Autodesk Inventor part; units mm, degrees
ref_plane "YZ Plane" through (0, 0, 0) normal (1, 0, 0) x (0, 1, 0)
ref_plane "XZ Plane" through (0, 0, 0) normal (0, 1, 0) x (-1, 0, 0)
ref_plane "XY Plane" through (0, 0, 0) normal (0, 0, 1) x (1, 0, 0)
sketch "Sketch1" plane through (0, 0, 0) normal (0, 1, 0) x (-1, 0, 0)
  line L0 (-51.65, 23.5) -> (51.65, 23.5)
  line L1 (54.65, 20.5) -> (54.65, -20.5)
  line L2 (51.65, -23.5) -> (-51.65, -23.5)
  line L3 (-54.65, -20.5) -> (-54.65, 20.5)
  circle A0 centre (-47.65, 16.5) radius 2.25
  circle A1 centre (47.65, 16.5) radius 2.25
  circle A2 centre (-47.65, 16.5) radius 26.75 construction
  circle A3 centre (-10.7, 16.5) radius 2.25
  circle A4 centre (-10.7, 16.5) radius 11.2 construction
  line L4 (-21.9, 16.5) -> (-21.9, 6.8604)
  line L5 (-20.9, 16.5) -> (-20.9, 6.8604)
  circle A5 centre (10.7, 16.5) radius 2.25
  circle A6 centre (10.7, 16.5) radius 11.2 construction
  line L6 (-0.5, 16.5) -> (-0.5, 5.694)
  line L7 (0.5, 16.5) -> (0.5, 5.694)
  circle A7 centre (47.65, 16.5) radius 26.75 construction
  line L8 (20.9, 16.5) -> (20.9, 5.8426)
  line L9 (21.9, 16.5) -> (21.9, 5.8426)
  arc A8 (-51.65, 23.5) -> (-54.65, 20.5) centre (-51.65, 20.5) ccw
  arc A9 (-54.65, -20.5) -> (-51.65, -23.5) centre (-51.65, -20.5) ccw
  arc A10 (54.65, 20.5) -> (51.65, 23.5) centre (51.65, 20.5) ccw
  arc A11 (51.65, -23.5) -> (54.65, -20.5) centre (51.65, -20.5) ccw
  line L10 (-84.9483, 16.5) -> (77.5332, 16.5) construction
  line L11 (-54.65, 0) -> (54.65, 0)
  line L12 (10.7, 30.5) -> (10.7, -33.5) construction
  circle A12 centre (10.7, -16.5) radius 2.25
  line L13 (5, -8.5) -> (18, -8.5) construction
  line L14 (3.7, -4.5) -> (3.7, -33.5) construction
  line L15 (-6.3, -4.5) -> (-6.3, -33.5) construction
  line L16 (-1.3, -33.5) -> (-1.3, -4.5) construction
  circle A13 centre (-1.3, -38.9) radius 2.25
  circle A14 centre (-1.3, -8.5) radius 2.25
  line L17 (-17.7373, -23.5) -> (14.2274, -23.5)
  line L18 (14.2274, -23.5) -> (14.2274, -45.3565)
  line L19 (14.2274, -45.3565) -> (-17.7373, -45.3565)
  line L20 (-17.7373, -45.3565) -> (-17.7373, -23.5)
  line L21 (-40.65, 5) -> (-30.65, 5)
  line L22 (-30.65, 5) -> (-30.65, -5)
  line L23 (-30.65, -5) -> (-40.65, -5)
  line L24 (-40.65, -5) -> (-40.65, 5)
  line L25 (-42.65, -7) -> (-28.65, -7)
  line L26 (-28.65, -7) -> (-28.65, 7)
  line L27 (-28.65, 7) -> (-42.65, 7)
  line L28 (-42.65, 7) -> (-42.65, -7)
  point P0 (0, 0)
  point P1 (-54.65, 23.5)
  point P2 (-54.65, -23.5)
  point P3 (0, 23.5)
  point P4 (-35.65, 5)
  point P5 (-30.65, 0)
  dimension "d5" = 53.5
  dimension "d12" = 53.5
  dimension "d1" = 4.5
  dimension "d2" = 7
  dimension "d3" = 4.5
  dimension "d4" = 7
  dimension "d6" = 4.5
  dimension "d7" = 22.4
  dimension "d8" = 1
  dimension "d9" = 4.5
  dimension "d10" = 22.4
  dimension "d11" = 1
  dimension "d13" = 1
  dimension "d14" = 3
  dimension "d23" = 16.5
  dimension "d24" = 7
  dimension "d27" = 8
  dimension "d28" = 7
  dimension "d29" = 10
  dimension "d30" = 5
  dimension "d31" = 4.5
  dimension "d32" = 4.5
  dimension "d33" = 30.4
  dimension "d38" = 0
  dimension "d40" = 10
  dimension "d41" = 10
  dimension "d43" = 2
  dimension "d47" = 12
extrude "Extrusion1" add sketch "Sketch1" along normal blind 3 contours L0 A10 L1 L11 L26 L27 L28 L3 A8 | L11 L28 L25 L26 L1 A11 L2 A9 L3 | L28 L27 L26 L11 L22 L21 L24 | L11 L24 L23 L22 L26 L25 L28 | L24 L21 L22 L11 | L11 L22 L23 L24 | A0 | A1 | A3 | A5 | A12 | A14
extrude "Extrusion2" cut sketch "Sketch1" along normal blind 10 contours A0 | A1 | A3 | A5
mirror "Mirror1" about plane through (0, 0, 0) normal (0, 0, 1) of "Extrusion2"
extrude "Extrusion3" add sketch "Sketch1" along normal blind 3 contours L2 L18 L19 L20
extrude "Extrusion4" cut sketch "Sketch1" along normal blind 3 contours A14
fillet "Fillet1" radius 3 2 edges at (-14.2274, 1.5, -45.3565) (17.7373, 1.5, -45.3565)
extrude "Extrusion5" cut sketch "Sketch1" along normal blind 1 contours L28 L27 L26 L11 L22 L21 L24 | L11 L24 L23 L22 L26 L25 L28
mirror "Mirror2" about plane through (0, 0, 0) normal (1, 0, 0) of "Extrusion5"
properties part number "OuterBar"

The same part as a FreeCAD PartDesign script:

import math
import FreeCAD as App
import Part
import Sketcher
from FreeCAD import Vector


def edges_at(feature, points):
    """Names of the edges that pass closest to the given points."""
    edges = feature.Shape.Edges
    near = lambda p: min(range(len(edges)), key=lambda i: edges[i].distToShape(Part.Vertex(*p))[0])
    return sorted({f"Edge{near(p) + 1}" for p in points})

doc = App.newDocument("Part")
body = doc.addObject("PartDesign::Body", "Body")

# Sketch on XZ plane
sketch1 = body.newObject("Sketcher::SketchObject", "Sketch")
sketch1.AttachmentSupport = (doc.getObject("XZ_Plane"), [""])
sketch1.MapMode = "FlatFace"
sketch1.addGeometry([
    Part.LineSegment(Vector(-51.6, 23.5, 0), Vector(51.6, 23.5, 0)),  # 0
    Part.ArcOfCircle(Part.Circle(Vector(51.6, 20.5, 0), Vector(0, 0, 1), 3), math.radians(0), math.radians(90)),  # 1
    Part.LineSegment(Vector(54.6, 20.5, 0), Vector(54.6, -20.5, 0)),  # 2
    Part.ArcOfCircle(Part.Circle(Vector(51.6, -20.5, 0), Vector(0, 0, 1), 3), math.radians(-90), math.radians(0)),  # 3
    Part.LineSegment(Vector(51.6, -23.5, 0), Vector(-51.6, -23.5, 0)),  # 4
    Part.ArcOfCircle(Part.Circle(Vector(-51.6, -20.5, 0), Vector(0, 0, 1), 3), math.radians(180), math.radians(270)),  # 5
    Part.LineSegment(Vector(-54.6, -20.5, 0), Vector(-54.6, 20.5, 0)),  # 6
    Part.ArcOfCircle(Part.Circle(Vector(-51.6, 20.5, 0), Vector(0, 0, 1), 3), math.radians(90), math.radians(180)),  # 7
], False)
sketch1.addConstraint([
    Sketcher.Constraint("Tangent", 0, 2, 1, 2),
    Sketcher.Constraint("Tangent", 1, 1, 2, 1),
    Sketcher.Constraint("Tangent", 2, 2, 3, 2),
    Sketcher.Constraint("Tangent", 3, 1, 4, 1),
    Sketcher.Constraint("Tangent", 4, 2, 5, 2),
    Sketcher.Constraint("Tangent", 5, 1, 6, 1),
    Sketcher.Constraint("Tangent", 6, 2, 7, 2),
    Sketcher.Constraint("Tangent", 7, 1, 0, 1),
    Sketcher.Constraint("Horizontal", 0),
    Sketcher.Constraint("Vertical", 2),
    Sketcher.Constraint("Horizontal", 4),
    Sketcher.Constraint("Vertical", 6),
    Sketcher.Constraint("Equal", 1, 3),
    Sketcher.Constraint("Equal", 3, 5),
    Sketcher.Constraint("Equal", 5, 7),
    Sketcher.Constraint("Symmetric", 1, 3, 5, 3, -1, 1),
    Sketcher.Constraint("Radius", 1, 3.0),
    Sketcher.Constraint("DistanceY", 2, 2, 2, 1, 41.0),
    Sketcher.Constraint("DistanceX", 0, 1, 0, 2, 103.3),
])
pad1 = body.newObject("PartDesign::Pad", "Pad")
pad1.Profile = sketch1
pad1.Length = 3
pad1.Reversed = True

# Sketch on XZ plane
sketch2 = body.newObject("Sketcher::SketchObject", "Sketch001")
sketch2.AttachmentSupport = (doc.getObject("XZ_Plane"), [""])
sketch2.MapMode = "FlatFace"
sketch2.addGeometry([
    Part.Circle(Vector(47.6, 16.5, 0), Vector(0, 0, 1), 2.2),
    Part.Circle(Vector(-47.6, 16.5, 0), Vector(0, 0, 1), 2.2),
    Part.Circle(Vector(10.7, 16.5, 0), Vector(0, 0, 1), 2.2),
    Part.Circle(Vector(-10.7, 16.5, 0), Vector(0, 0, 1), 2.2),
], False)
sketch2.addConstraint([
    Sketcher.Constraint("Equal", 0, 1),
    Sketcher.Constraint("Equal", 1, 2),
    Sketcher.Constraint("Equal", 2, 3),
    Sketcher.Constraint("Symmetric", 0, 3, 1, 3, -2),
    Sketcher.Constraint("Symmetric", 2, 3, 3, 3, -2),
    Sketcher.Constraint("Horizontal", 1, 3, 2, 3),
    Sketcher.Constraint("Diameter", 0, 4.5),
    Sketcher.Constraint("DistanceY", -1, 1, 0, 3, 16.5),
    Sketcher.Constraint("DistanceX", -1, 1, 2, 3, 10.7),
    Sketcher.Constraint("DistanceX", 1, 3, 0, 3, 95.3),
])
pocket1 = body.newObject("PartDesign::Pocket", "Pocket")
pocket1.Profile = sketch2
pocket1.Length = 10
doc.recompute()

mirrored = body.newObject("PartDesign::Mirrored", "Mirrored")
mirrored.Originals = [pocket1]
mirrored.MirrorPlane = (doc.getObject("XY_Plane"), [""])
body.Tip = mirrored

# Sketch on XZ plane
sketch3 = body.newObject("Sketcher::SketchObject", "Sketch002")
sketch3.AttachmentSupport = (doc.getObject("XZ_Plane"), [""])
sketch3.MapMode = "FlatFace"
sketch3.addGeometry([
    Part.LineSegment(Vector(-14.2, -23.5, 0), Vector(17.7, -23.5, 0)),  # 0
    Part.LineSegment(Vector(17.7, -23.5, 0), Vector(17.7, -45.4, 0)),  # 1
    Part.LineSegment(Vector(17.7, -45.4, 0), Vector(-14.2, -45.4, 0)),  # 2
    Part.LineSegment(Vector(-14.2, -45.4, 0), Vector(-14.2, -23.5, 0)),  # 3
    Part.Circle(Vector(1.3, -38.9, 0), Vector(0, 0, 1), 2.2),  # 4
], False)
sketch3.addConstraint([
    Sketcher.Constraint("Coincident", 0, 2, 1, 1),
    Sketcher.Constraint("Coincident", 1, 2, 2, 1),
    Sketcher.Constraint("Coincident", 2, 2, 3, 1),
    Sketcher.Constraint("Coincident", 3, 2, 0, 1),
    Sketcher.Constraint("Horizontal", 0),
    Sketcher.Constraint("Vertical", 1),
    Sketcher.Constraint("Horizontal", 2),
    Sketcher.Constraint("Vertical", 3),
    Sketcher.Constraint("Diameter", 4, 4.5),
    Sketcher.Constraint("DistanceX", -1, 1, 4, 3, 1.3),
    Sketcher.Constraint("DistanceY", 4, 3, -1, 1, 38.9),
    Sketcher.Constraint("DistanceY", 0, 2, -1, 1, 23.5),
    Sketcher.Constraint("DistanceX", 0, 1, 0, 2, 31.9647),
    Sketcher.Constraint("DistanceY", 1, 2, 1, 1, 21.8565),
    Sketcher.Constraint("DistanceX", -1, 1, 0, 2, 17.7373),
])
pad2 = body.newObject("PartDesign::Pad", "Pad001")
pad2.Profile = sketch3
pad2.Length = 3
pad2.Reversed = True

# Sketch on XZ plane
sketch4 = body.newObject("Sketcher::SketchObject", "Sketch003")
sketch4.AttachmentSupport = (doc.getObject("XZ_Plane"), [""])
sketch4.MapMode = "FlatFace"
sketch4.addGeometry(Part.Circle(Vector(1.3, -8.5, 0), Vector(0, 0, 1), 2.2), False)
sketch4.addConstraint([
    Sketcher.Constraint("Diameter", 0, 4.5),
    Sketcher.Constraint("DistanceX", -1, 1, 0, 3, 1.3),
    Sketcher.Constraint("DistanceY", 0, 3, -1, 1, 8.5),
])
pocket2 = body.newObject("PartDesign::Pocket", "Pocket001")
pocket2.Profile = sketch4
pocket2.Length = 3
doc.recompute()

fillet = body.newObject("PartDesign::Fillet", "Fillet")
fillet.Base = (pocket2, edges_at(pocket2, [(-14.227, 1.5, -45.356), (17.737, 1.5, -45.356)]))
fillet.Radius = 3

# Sketch on XZ plane
sketch5 = body.newObject("Sketcher::SketchObject", "Sketch004")
sketch5.AttachmentSupport = (doc.getObject("XZ_Plane"), [""])
sketch5.MapMode = "FlatFace"
sketch5.addGeometry([
    Part.LineSegment(Vector(43, 7, 0), Vector(43, -7, 0)),  # 0
    Part.LineSegment(Vector(43, -7, 0), Vector(29, -7, 0)),  # 1
    Part.LineSegment(Vector(29, -7, 0), Vector(29, 7, 0)),  # 2
    Part.LineSegment(Vector(29, 7, 0), Vector(43, 7, 0)),  # 3
    Part.LineSegment(Vector(31, 5, 0), Vector(31, -5, 0)),  # 4
    Part.LineSegment(Vector(31, -5, 0), Vector(41, -5, 0)),  # 5
    Part.LineSegment(Vector(41, -5, 0), Vector(41, 5, 0)),  # 6
    Part.LineSegment(Vector(41, 5, 0), Vector(31, 5, 0)),  # 7
], False)
sketch5.addConstraint([
    Sketcher.Constraint("Coincident", 0, 2, 1, 1),
    Sketcher.Constraint("Coincident", 1, 2, 2, 1),
    Sketcher.Constraint("Coincident", 2, 2, 3, 1),
    Sketcher.Constraint("Coincident", 3, 2, 0, 1),
    Sketcher.Constraint("Coincident", 4, 2, 5, 1),
    Sketcher.Constraint("Coincident", 5, 2, 6, 1),
    Sketcher.Constraint("Coincident", 6, 2, 7, 1),
    Sketcher.Constraint("Coincident", 7, 2, 4, 1),
    Sketcher.Constraint("Vertical", 0),
    Sketcher.Constraint("Horizontal", 1),
    Sketcher.Constraint("Vertical", 2),
    Sketcher.Constraint("Horizontal", 3),
    Sketcher.Constraint("Vertical", 4),
    Sketcher.Constraint("Horizontal", 5),
    Sketcher.Constraint("Vertical", 6),
    Sketcher.Constraint("Horizontal", 7),
    Sketcher.Constraint("Equal", 3, 0),
    Sketcher.Constraint("Equal", 7, 4),
    Sketcher.Constraint("DistanceX", 5, 1, 5, 2, 10.0),
    Sketcher.Constraint("DistanceY", 0, 2, -1, 1, 7.0),
    Sketcher.Constraint("DistanceY", -1, 1, 2, 2, 7.0),
    Sketcher.Constraint("DistanceY", 4, 2, -1, 1, 5.0),
    Sketcher.Constraint("DistanceX", 1, 2, 4, 2, 2.0),
    Sketcher.Constraint("DistanceX", -1, 1, 0, 2, 42.65),
])
pocket3 = body.newObject("PartDesign::Pocket", "Pocket002")
pocket3.Profile = sketch5
pocket3.Length = 1
doc.recompute()

mirrored2 = body.newObject("PartDesign::Mirrored", "Mirrored001")
mirrored2.Originals = [pocket3]
mirrored2.MirrorPlane = (doc.getObject("YZ_Plane"), [""])
body.Tip = mirrored2

doc.recompute()
